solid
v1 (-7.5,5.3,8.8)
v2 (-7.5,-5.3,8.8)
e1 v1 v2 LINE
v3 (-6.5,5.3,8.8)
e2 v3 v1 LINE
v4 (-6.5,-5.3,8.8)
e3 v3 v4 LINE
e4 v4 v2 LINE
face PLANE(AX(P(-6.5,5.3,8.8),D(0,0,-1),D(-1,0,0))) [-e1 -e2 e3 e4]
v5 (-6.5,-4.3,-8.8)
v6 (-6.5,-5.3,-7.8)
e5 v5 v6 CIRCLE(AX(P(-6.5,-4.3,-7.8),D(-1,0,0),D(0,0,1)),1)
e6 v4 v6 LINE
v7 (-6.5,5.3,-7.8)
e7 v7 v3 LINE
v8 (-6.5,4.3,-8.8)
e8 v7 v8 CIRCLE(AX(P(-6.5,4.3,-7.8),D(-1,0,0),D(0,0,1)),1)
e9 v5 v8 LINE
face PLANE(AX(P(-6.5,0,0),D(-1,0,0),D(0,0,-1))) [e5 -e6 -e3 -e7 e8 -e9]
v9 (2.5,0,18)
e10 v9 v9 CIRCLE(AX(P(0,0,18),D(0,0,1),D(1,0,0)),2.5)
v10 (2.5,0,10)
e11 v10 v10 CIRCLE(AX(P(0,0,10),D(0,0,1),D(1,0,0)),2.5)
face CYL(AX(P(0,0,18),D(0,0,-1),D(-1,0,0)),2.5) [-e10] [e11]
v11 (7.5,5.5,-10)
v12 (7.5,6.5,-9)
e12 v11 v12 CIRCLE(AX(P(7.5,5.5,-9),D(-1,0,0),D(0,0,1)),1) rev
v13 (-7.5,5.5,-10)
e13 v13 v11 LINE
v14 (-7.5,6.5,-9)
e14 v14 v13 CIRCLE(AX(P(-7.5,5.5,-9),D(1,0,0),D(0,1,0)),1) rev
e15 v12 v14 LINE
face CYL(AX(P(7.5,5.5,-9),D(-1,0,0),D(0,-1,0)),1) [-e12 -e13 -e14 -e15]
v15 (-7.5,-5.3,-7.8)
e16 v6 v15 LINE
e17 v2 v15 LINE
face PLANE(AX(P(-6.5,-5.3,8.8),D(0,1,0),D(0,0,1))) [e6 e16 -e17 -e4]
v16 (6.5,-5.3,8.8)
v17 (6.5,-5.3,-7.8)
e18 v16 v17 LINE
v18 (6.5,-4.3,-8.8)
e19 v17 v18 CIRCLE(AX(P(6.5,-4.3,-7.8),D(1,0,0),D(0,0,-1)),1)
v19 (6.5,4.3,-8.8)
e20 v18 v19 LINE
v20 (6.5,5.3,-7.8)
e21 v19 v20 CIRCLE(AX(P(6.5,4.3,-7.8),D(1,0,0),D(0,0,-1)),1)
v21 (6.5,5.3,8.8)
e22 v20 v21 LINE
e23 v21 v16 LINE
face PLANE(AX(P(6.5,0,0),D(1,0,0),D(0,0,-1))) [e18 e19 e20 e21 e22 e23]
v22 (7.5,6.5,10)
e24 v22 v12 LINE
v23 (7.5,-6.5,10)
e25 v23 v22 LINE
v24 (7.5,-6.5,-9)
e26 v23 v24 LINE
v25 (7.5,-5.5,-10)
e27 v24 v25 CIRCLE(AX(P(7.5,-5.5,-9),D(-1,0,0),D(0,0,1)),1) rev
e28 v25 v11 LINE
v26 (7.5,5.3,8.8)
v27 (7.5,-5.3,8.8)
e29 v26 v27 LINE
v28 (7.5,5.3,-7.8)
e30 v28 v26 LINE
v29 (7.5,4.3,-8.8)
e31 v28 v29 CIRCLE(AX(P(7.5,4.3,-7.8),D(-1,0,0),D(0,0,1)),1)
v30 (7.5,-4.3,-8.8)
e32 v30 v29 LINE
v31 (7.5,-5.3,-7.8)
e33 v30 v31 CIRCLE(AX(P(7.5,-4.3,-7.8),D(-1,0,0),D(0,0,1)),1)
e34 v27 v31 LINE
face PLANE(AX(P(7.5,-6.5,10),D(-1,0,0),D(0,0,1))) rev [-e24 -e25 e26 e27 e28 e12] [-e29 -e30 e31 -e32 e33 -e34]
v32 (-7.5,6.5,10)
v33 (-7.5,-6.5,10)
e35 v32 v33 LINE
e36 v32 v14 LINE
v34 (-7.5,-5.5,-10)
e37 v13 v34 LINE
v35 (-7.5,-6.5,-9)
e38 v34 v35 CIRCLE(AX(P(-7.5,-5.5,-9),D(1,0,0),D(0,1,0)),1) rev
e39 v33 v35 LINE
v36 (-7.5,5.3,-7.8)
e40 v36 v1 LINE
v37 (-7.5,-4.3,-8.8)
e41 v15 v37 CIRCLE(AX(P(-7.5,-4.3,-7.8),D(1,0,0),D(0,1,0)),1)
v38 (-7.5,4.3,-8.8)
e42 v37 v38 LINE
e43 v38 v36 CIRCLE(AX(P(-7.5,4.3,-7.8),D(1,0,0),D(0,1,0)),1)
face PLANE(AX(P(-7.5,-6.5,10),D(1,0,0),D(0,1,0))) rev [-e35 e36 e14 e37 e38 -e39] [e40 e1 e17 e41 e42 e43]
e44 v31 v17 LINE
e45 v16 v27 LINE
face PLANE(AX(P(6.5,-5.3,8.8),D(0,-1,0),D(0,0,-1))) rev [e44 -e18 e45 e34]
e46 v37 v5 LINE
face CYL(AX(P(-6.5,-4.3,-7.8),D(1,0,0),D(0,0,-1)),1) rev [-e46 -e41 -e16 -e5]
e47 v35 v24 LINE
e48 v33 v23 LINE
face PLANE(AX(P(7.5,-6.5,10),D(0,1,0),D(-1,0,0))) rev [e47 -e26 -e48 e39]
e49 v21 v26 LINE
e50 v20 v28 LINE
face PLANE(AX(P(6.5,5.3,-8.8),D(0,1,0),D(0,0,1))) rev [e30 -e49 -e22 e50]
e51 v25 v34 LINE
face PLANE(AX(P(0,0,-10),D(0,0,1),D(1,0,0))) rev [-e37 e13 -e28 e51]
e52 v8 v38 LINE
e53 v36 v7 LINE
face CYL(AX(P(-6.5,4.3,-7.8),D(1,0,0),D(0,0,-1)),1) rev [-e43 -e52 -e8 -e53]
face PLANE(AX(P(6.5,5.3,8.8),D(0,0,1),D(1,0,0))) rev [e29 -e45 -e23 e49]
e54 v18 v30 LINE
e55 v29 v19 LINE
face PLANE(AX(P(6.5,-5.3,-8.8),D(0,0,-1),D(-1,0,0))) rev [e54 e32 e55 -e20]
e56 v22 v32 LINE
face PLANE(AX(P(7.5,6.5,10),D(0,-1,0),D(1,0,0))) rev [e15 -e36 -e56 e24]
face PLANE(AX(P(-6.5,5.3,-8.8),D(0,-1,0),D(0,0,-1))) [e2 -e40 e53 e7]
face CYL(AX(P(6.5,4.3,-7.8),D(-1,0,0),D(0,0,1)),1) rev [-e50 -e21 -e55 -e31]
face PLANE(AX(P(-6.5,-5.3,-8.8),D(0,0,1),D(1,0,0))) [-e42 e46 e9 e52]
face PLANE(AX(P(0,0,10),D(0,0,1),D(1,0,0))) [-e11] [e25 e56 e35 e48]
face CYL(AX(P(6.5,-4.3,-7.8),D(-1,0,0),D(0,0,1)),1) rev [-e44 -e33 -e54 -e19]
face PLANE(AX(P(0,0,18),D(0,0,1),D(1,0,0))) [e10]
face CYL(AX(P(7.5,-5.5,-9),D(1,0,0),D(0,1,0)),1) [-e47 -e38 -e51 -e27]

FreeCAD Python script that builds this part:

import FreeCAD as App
import Part
import Sketcher
from FreeCAD import Vector


def edges_at(feature, points):
    """Names of the edges that pass closest to the given points."""
    edges = feature.Shape.Edges
    near = lambda p: min(range(len(edges)), key=lambda i: edges[i].distToShape(Part.Vertex(*p))[0])
    return sorted({f"Edge{near(p) + 1}" for p in points})

doc = App.newDocument("Part")
body = doc.addObject("PartDesign::Body", "Body")

sketch1 = doc.addObject("Sketcher::SketchObject", "Sketch")
body.addObject(sketch1)
sketch1.AttachmentSupport = (doc.XY_Plane, [""])
sketch1.MapMode = "FlatFace"
sketch1.addGeometry([
    Part.LineSegment(Vector(-8, 6, 0), Vector(-8, -6, 0)),
    Part.LineSegment(Vector(-8, -6, 0), Vector(8, -6, 0)),
    Part.LineSegment(Vector(8, -6, 0), Vector(8, 6, 0)),
    Part.LineSegment(Vector(8, 6, 0), Vector(-8, 6, 0)),
], False)
sketch1.addConstraint([
    Sketcher.Constraint("Coincident", 0, 2, 1, 1),
    Sketcher.Constraint("Coincident", 1, 2, 2, 1),
    Sketcher.Constraint("Coincident", 2, 2, 3, 1),
    Sketcher.Constraint("Coincident", 3, 2, 0, 1),
    Sketcher.Constraint("Vertical", 0),
    Sketcher.Constraint("Horizontal", 1),
    Sketcher.Constraint("Vertical", 2),
    Sketcher.Constraint("Horizontal", 3),
    Sketcher.Constraint("Symmetric", 0, 2, 2, 2, -1, 1),
    Sketcher.Constraint("DistanceX", 1, 1, 1, 2, 15.0),
    Sketcher.Constraint("DistanceY", 0, 2, 0, 1, 13.0),
])
pad1 = doc.addObject("PartDesign::Pad", "Pad")
body.addObject(pad1)
pad1.Profile = sketch1
pad1.Length = 20
pad1.Midplane = True
doc.recompute()

fillet = doc.addObject("PartDesign::Fillet", "Fillet")
body.addObject(fillet)
fillet.Base = (pad1, edges_at(pad1, [(0, 6.5, -10), (0, -6.5, -10)]))
fillet.Radius = 1

sketch2 = doc.addObject("Sketcher::SketchObject", "Sketch001")
body.addObject(sketch2)
sketch2.AttachmentSupport = (doc.YZ_Plane, [""])
sketch2.MapMode = "FlatFace"
sketch2.AttachmentOffset = App.Placement(Vector(0, 0, 7.5), App.Rotation())
sketch2.addGeometry([
    Part.LineSegment(Vector(5, 9, 0), Vector(-5, 9, 0)),
    Part.LineSegment(Vector(-5, 9, 0), Vector(-5, -9, 0)),
    Part.LineSegment(Vector(-5, -9, 0), Vector(5, -9, 0)),
    Part.LineSegment(Vector(5, -9, 0), Vector(5, 9, 0)),
], False)
sketch2.addConstraint([
    Sketcher.Constraint("Coincident", 0, 2, 1, 1),
    Sketcher.Constraint("Coincident", 1, 2, 2, 1),
    Sketcher.Constraint("Coincident", 2, 2, 3, 1),
    Sketcher.Constraint("Coincident", 3, 2, 0, 1),
    Sketcher.Constraint("Horizontal", 0),
    Sketcher.Constraint("Vertical", 1),
    Sketcher.Constraint("Horizontal", 2),
    Sketcher.Constraint("Vertical", 3),
    Sketcher.Constraint("Symmetric", 0, 2, 2, 2, -1, 1),
    Sketcher.Constraint("DistanceX", 0, 2, 0, 1, 10.6),
    Sketcher.Constraint("DistanceY", 1, 2, 1, 1, 17.6),
])
pocket1 = doc.addObject("PartDesign::Pocket", "Pocket")
body.addObject(pocket1)
pocket1.Profile = sketch2
pocket1.Length = 1
doc.recompute()

fillet2 = doc.addObject("PartDesign::Fillet", "Fillet001")
body.addObject(fillet2)
fillet2.Base = (pocket1, edges_at(pocket1, [(7, 5.3, -8.8), (7, -5.3, -8.8)]))
fillet2.Radius = 1
doc.recompute()

mirrored = doc.addObject("PartDesign::Mirrored", "Mirrored")
body.addObject(mirrored)
mirrored.Originals = [pocket1]
mirrored.MirrorPlane = (doc.YZ_Plane, [""])
body.Tip = mirrored
doc.recompute()

fillet3 = doc.addObject("PartDesign::Fillet", "Fillet002")
body.addObject(fillet3)
fillet3.Base = (mirrored, edges_at(mirrored, [(-7, 5.3, -8.8), (-7, -5.3, -8.8)]))
fillet3.Radius = 1

sketch3 = doc.addObject("Sketcher::SketchObject", "Sketch002")
body.addObject(sketch3)
sketch3.AttachmentSupport = (doc.XY_Plane, [""])
sketch3.MapMode = "FlatFace"
sketch3.AttachmentOffset = App.Placement(Vector(0, 0, 10), App.Rotation())
sketch3.addGeometry(Part.Circle(Vector(0, 0, 0), Vector(0, 0, 1), 2.5), False)
sketch3.addConstraint([
    Sketcher.Constraint("Coincident", 0, 3, -1, 1),
    Sketcher.Constraint("Diameter", 0, 5.0),
])
pad2 = doc.addObject("PartDesign::Pad", "Pad001")
body.addObject(pad2)
pad2.Profile = sketch3
pad2.Length = 8

doc.recompute()
